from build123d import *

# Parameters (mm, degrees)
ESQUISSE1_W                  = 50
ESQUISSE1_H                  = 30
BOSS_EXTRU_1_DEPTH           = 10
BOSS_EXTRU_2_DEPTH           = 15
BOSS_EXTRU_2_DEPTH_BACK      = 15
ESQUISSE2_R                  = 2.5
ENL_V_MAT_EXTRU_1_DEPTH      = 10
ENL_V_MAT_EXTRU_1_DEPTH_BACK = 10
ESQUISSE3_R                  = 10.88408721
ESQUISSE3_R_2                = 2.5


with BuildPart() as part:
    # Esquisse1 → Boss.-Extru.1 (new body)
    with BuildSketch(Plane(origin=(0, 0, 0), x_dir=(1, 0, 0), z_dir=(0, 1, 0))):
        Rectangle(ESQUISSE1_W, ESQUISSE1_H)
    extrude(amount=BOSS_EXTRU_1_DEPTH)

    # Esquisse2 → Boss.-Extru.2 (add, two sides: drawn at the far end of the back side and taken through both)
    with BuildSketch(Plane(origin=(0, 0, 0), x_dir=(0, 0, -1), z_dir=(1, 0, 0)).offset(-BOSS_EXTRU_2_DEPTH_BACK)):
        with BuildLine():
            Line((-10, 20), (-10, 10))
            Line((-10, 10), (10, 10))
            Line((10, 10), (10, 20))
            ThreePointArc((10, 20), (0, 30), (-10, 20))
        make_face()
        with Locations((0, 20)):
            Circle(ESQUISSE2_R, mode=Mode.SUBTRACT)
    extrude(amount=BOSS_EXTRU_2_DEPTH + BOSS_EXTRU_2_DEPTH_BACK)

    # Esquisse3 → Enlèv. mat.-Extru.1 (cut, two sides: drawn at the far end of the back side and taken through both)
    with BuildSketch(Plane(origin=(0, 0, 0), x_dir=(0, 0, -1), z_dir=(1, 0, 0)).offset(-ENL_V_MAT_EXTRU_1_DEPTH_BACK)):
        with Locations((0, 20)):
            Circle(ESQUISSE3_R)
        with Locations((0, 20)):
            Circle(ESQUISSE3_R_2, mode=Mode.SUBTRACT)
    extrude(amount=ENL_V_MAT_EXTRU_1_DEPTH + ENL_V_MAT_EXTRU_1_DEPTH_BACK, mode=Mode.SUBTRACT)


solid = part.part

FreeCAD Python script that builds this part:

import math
import FreeCAD as App
import Part
import Sketcher


def add_polygon(sketch, points):
    """Adds a closed chain of lines whose ends are joined by coincident constraints."""
    first, n = sketch.GeometryCount, len(points)
    for a, b in zip(points, points[1:] + points[:1]):
        sketch.addGeometry(Part.LineSegment(App.Vector(*a, 0), App.Vector(*b, 0)), False)
    for i in range(n):
        sketch.addConstraint(Sketcher.Constraint("Coincident", first + i, 2, first + (i + 1) % n, 1))

doc = App.newDocument("Part")
params = doc.addObject("Spreadsheet::Sheet", "Params")
for row, (alias, value) in enumerate([
    ("sketch1_width", "50 mm"),
    ("sketch1_height", "30 mm"),
    ("pad1_length", "10 mm"),
    ("sketch2_diameter", "5 mm"),
    ("sketch2_radius", "10 mm"),
    ("sketch2_width", "10 mm"),
    ("pad2_length", "15 mm"),
    ("pad2_length2", "15 mm"),
    ("sketch3_diameter", "5 mm"),
    ("pocket1_length", "10 mm"),
    ("pocket1_length2", "10 mm"),
], start=1):
    params.set(f"A{row}", alias)
    params.set(f"B{row}", "=" + value)
    params.setAlias(f"B{row}", alias)

body = doc.addObject("PartDesign::Body", "Body")

sketch1 = body.newObject("Sketcher::SketchObject", "Sketch")
sketch1.AttachmentSupport = (doc.getObject("XZ_Plane"), [""])
sketch1.MapMode = "FlatFace"
add_polygon(sketch1, [(-25, -15), (-25, 15), (25, 15), (25, -15)])
sketch1.addConstraint(Sketcher.Constraint("Vertical", 0))
sketch1.addConstraint(Sketcher.Constraint("Horizontal", 1))
sketch1.addConstraint(Sketcher.Constraint("Vertical", 2))
sketch1.addConstraint(Sketcher.Constraint("Horizontal", 3))
sketch1.addConstraint(Sketcher.Constraint("Symmetric", 0, 2, 2, 2, -1, 1))
sketch1.addConstraint(Sketcher.Constraint("DistanceX", 1, 1, 1, 2, 50.0))
sketch1.addConstraint(Sketcher.Constraint("DistanceY", 0, 1, 0, 2, 30.0))
sketch1.setExpression("Constraints[9]", "Params.sketch1_width")
sketch1.setExpression("Constraints[10]", "Params.sketch1_height")
pad1 = body.newObject("PartDesign::Pad", "Pad")
pad1.Profile = sketch1
pad1.setExpression("Length", "Params.pad1_length")
pad1.Reversed = True

sketch2 = body.newObject("Sketcher::SketchObject", "Sketch001")
sketch2.AttachmentSupport = (doc.getObject("YZ_Plane"), [""])
sketch2.MapMode = "FlatFace"
sketch2.addGeometry(Part.LineSegment(App.Vector(20, 10, 0), App.Vector(10, 10, 0)), False)
sketch2.addGeometry(Part.LineSegment(App.Vector(10, 10, 0), App.Vector(10, -10, 0)), False)
sketch2.addGeometry(Part.LineSegment(App.Vector(10, -10, 0), App.Vector(20, -10, 0)), False)
sketch2.addGeometry(Part.ArcOfCircle(Part.Circle(App.Vector(20, 0, 0), App.Vector(0, 0, 1), 10), math.radians(-90), math.radians(90)), False)
sketch2.addGeometry(Part.Circle(App.Vector(20, 0, 0), App.Vector(0, 0, 1), 2.5), False)
sketch2.addConstraint(Sketcher.Constraint("Coincident", 0, 2, 1, 1))
sketch2.addConstraint(Sketcher.Constraint("Coincident", 1, 2, 2, 1))
sketch2.addConstraint(Sketcher.Constraint("Tangent", 2, 2, 3, 1))
sketch2.addConstraint(Sketcher.Constraint("Tangent", 3, 2, 0, 1))
sketch2.addConstraint(Sketcher.Constraint("Horizontal", 0))
sketch2.addConstraint(Sketcher.Constraint("Vertical", 1))
sketch2.addConstraint(Sketcher.Constraint("Horizontal", 2))
sketch2.addConstraint(Sketcher.Constraint("Coincident", 4, 3, 3, 3))
sketch2.addConstraint(Sketcher.Constraint("PointOnObject", 3, 3, -1))
sketch2.addConstraint(Sketcher.Constraint("Diameter", 4, 5.0))
sketch2.addConstraint(Sketcher.Constraint("Radius", 3, 10.0))
sketch2.addConstraint(Sketcher.Constraint("DistanceX", 0, 2, 0, 1, 10.0))
sketch2.addConstraint(Sketcher.Constraint("DistanceX", -1, 1, 3, 3, 20.0))
sketch2.setExpression("Constraints[9]", "Params.sketch2_diameter")
sketch2.setExpression("Constraints[10]", "Params.sketch2_radius")
sketch2.setExpression("Constraints[11]", "Params.sketch2_width")
pad2 = body.newObject("PartDesign::Pad", "Pad001")
pad2.Profile = sketch2
pad2.Type = "TwoLengths"
pad2.setExpression("Length", "Params.pad2_length")
pad2.setExpression("Length2", "Params.pad2_length2")

sketch3 = body.newObject("Sketcher::SketchObject", "Sketch002")
sketch3.AttachmentSupport = (doc.getObject("YZ_Plane"), [""])
sketch3.MapMode = "FlatFace"
sketch3.addGeometry(Part.Circle(App.Vector(20, 0, 0), App.Vector(0, 0, 1), 10.9), False)
sketch3.addGeometry(Part.Circle(App.Vector(20, 0, 0), App.Vector(0, 0, 1), 2.5), False)
sketch3.addConstraint(Sketcher.Constraint("Coincident", 1, 3, 0, 3))
sketch3.addConstraint(Sketcher.Constraint("PointOnObject", 0, 3, -1))
sketch3.addConstraint(Sketcher.Constraint("Diameter", 1, 5.0))
sketch3.addConstraint(Sketcher.Constraint("DistanceX", -1, 1, 0, 3, 20.0))
sketch3.addConstraint(Sketcher.Constraint("Diameter", 0, 21.768174))
sketch3.setExpression("Constraints[2]", "Params.sketch3_diameter")
pocket1 = body.newObject("PartDesign::Pocket", "Pocket")
pocket1.Profile = sketch3
pocket1.Type = "TwoLengths"
pocket1.setExpression("Length", "Params.pocket1_length")
pocket1.setExpression("Length2", "Params.pocket1_length2")
pocket1.Reversed = True

doc.recompute()
